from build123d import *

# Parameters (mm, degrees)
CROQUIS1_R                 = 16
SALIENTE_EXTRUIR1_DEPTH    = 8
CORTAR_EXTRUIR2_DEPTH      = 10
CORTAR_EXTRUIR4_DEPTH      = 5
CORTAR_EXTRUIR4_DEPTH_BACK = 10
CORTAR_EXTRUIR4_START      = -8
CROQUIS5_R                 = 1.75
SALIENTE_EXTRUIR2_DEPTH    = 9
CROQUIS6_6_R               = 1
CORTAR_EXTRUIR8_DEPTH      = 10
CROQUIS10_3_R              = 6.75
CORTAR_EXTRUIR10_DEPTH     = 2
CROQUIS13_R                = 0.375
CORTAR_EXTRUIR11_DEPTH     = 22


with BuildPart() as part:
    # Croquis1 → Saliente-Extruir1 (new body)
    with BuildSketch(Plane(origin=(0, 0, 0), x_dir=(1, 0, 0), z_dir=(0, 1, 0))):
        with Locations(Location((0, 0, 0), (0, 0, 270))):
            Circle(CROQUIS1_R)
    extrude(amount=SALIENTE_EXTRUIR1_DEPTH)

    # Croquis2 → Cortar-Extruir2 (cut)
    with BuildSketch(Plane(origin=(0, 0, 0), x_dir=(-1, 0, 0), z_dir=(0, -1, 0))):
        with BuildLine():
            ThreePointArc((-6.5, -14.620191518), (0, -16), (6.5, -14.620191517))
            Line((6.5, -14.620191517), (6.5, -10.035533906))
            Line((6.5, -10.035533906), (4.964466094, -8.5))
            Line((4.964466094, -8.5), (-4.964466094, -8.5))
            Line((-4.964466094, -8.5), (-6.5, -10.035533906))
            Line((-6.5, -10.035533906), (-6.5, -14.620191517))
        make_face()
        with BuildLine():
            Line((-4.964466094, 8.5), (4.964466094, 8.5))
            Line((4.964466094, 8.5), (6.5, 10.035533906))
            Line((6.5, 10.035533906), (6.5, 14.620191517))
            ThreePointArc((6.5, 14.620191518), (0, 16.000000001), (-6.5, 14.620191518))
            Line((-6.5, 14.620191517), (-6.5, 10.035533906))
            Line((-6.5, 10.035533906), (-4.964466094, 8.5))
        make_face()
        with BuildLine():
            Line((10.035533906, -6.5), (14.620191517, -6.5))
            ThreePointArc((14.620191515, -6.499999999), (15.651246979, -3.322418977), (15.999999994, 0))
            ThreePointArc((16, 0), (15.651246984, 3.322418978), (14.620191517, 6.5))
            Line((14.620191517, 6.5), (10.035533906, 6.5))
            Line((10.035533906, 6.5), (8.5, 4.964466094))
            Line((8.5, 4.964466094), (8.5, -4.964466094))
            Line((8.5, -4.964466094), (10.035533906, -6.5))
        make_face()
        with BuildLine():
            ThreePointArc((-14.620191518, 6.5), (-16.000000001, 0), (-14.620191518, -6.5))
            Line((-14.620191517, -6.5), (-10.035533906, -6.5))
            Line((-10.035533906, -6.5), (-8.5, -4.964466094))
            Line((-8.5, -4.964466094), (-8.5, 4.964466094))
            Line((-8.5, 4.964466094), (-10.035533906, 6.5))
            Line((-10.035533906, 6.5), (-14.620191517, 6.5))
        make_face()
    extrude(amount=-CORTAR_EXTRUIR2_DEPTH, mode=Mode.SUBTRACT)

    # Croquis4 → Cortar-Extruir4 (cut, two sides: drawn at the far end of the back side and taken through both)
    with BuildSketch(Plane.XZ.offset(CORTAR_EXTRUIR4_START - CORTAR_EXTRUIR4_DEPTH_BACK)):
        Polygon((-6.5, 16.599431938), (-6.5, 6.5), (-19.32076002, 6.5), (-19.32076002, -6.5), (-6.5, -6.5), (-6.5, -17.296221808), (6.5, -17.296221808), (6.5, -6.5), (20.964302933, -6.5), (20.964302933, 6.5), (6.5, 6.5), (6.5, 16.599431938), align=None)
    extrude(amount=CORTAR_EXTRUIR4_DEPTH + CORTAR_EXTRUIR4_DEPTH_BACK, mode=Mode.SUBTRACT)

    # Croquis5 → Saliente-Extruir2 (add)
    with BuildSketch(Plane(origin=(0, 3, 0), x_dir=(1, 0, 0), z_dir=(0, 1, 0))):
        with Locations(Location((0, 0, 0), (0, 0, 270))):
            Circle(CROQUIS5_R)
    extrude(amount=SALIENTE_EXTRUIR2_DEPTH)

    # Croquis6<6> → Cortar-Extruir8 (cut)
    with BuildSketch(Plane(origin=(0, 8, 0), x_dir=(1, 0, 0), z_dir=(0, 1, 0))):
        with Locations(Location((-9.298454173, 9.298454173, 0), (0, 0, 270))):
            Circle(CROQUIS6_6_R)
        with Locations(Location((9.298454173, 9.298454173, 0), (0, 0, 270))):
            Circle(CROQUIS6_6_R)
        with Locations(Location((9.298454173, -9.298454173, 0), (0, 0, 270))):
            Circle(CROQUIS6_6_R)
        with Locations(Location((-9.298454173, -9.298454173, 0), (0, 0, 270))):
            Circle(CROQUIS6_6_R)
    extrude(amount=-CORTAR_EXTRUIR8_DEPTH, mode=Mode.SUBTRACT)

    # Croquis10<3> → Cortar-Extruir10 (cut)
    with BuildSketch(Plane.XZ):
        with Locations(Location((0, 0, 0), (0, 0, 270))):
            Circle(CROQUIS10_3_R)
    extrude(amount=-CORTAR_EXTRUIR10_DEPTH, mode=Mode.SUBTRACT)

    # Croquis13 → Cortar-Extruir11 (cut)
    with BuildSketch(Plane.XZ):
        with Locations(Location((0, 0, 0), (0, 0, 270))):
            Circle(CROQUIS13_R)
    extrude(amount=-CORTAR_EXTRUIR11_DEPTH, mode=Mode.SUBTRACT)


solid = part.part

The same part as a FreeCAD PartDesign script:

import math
import FreeCAD as App
import Part
import Sketcher

V = App.Vector
Q = App.Units.Quantity

doc = App.newDocument("Part")
params = doc.addObject("Spreadsheet::Sheet", "Params")
for row, (alias, value) in enumerate([
    ("sketch1_diameter", "32 mm"),
    ("pad1_length", "8 mm"),
    ("sketch2_radius", "16 mm"),
    ("pocket1_length", "10 mm"),
    ("sketch3_width", "13 mm"),
    ("pocket2_length", "5 mm"),
    ("pocket2_length2", "10 mm"),
    ("sketch4_diameter", "3.5 mm"),
    ("pad2_length", "9 mm"),
    ("sketch5_diameter", "2 mm"),
    ("pocket3_length", "10 mm"),
    ("sketch6_diameter", "13.5 mm"),
    ("pocket4_length", "2 mm"),
    ("sketch7_diameter", "0.75 mm"),
    ("pocket5_length", "22 mm"),
], start=1):
    params.set(f"A{row}", alias)
    params.set(f"B{row}", "=" + value)
    params.setAlias(f"B{row}", alias)

body = doc.addObject("PartDesign::Body", "Body")

sketch1 = body.newObject("Sketcher::SketchObject", "Sketch")
sketch1.AttachmentSupport = (doc.getObject("XZ_Plane"), [""])
sketch1.MapMode = "FlatFace"
sketch1.addGeometry(Part.Circle(V(0, 0, 0), V(0, 0, 1), 16), False)
sketch1.addConstraint(Sketcher.Constraint("Coincident", 0, 3, -1, 1))
sketch1.addConstraint(Sketcher.Constraint("Diameter", 0, Q("32 mm")))
sketch1.setExpression("Constraints[1]", "Params.sketch1_diameter")
pad1 = body.newObject("PartDesign::Pad", "Pad")
pad1.Profile = sketch1
pad1.setExpression("Length", "Params.pad1_length")
pad1.Reversed = True

sketch2 = body.newObject("Sketcher::SketchObject", "Sketch001")
sketch2.AttachmentSupport = (doc.getObject("XZ_Plane"), [""])
sketch2.MapMode = "FlatFace"
sketch2.addGeometry(Part.ArcOfCircle(Part.Circle(V(0, 0, 0), V(0, 0, 1), 16), math.radians(66.030518), math.radians(113.969482)), False)
sketch2.addGeometry(Part.LineSegment(V(-6.5, 14.620192, 0), V(-6.5, 10.035534, 0)), False)
sketch2.addGeometry(Part.LineSegment(V(-6.5, 10.035534, 0), V(-4.964466, 8.5, 0)), False)
sketch2.addGeometry(Part.LineSegment(V(-4.964466, 8.5, 0), V(4.964466, 8.5, 0)), False)
sketch2.addGeometry(Part.LineSegment(V(4.964466, 8.5, 0), V(6.5, 10.035534, 0)), False)
sketch2.addGeometry(Part.LineSegment(V(6.5, 10.035534, 0), V(6.5, 14.620192, 0)), False)
sketch2.addGeometry(Part.LineSegment(V(4.964466, -8.5, 0), V(-4.964466, -8.5, 0)), False)
sketch2.addGeometry(Part.LineSegment(V(-4.964466, -8.5, 0), V(-6.5, -10.035534, 0)), False)
sketch2.addGeometry(Part.LineSegment(V(-6.5, -10.035534, 0), V(-6.5, -14.620192, 0)), False)
sketch2.addGeometry(Part.ArcOfCircle(Part.Circle(V(0, 0, 0), V(0, 0, 1), 16), math.radians(-113.969482), math.radians(-66.030518)), False)
sketch2.addGeometry(Part.LineSegment(V(6.5, -14.620192, 0), V(6.5, -10.035534, 0)), False)
sketch2.addGeometry(Part.LineSegment(V(6.5, -10.035534, 0), V(4.964466, -8.5, 0)), False)
sketch2.addGeometry(Part.LineSegment(V(-10.035534, 6.5, 0), V(-14.620192, 6.5, 0)), False)
sketch2.addGeometry(Part.ArcOfCircle(Part.Circle(V(0, 0, 0), V(0, 0, 1), 16), math.radians(156.030518), math.radians(180)), False)
sketch2.addGeometry(Part.ArcOfCircle(Part.Circle(V(0, 0, 0), V(0, 0, 1), 16), math.radians(180), math.radians(203.969482)), False)
sketch2.addGeometry(Part.LineSegment(V(-14.620192, -6.5, 0), V(-10.035534, -6.5, 0)), False)
sketch2.addGeometry(Part.LineSegment(V(-10.035534, -6.5, 0), V(-8.5, -4.964466, 0)), False)
sketch2.addGeometry(Part.LineSegment(V(-8.5, -4.964466, 0), V(-8.5, 4.964466, 0)), False)
sketch2.addGeometry(Part.LineSegment(V(-8.5, 4.964466, 0), V(-10.035534, 6.5, 0)), False)
sketch2.addGeometry(Part.ArcOfCircle(Part.Circle(V(0, 0, 0), V(0, 0, 1), 16), math.radians(-23.969482), math.radians(23.969482)), False)
sketch2.addGeometry(Part.LineSegment(V(14.620192, 6.5, 0), V(10.035534, 6.5, 0)), False)
sketch2.addGeometry(Part.LineSegment(V(10.035534, 6.5, 0), V(8.5, 4.964466, 0)), False)
sketch2.addGeometry(Part.LineSegment(V(8.5, 4.964466, 0), V(8.5, -4.964466, 0)), False)
sketch2.addGeometry(Part.LineSegment(V(8.5, -4.964466, 0), V(10.035534, -6.5, 0)), False)
sketch2.addGeometry(Part.LineSegment(V(10.035534, -6.5, 0), V(14.620192, -6.5, 0)), False)
sketch2.addConstraint(Sketcher.Constraint("Coincident", 0, 2, 1, 1))
sketch2.addConstraint(Sketcher.Constraint("Coincident", 1, 2, 2, 1))
sketch2.addConstraint(Sketcher.Constraint("Coincident", 2, 2, 3, 1))
sketch2.addConstraint(Sketcher.Constraint("Coincident", 3, 2, 4, 1))
sketch2.addConstraint(Sketcher.Constraint("Coincident", 4, 2, 5, 1))
sketch2.addConstraint(Sketcher.Constraint("Coincident", 5, 2, 0, 1))
sketch2.addConstraint(Sketcher.Constraint("Coincident", 6, 2, 7, 1))
sketch2.addConstraint(Sketcher.Constraint("Coincident", 7, 2, 8, 1))
sketch2.addConstraint(Sketcher.Constraint("Coincident", 8, 2, 9, 1))
sketch2.addConstraint(Sketcher.Constraint("Coincident", 9, 2, 10, 1))
sketch2.addConstraint(Sketcher.Constraint("Coincident", 10, 2, 11, 1))
sketch2.addConstraint(Sketcher.Constraint("Coincident", 11, 2, 6, 1))
sketch2.addConstraint(Sketcher.Constraint("Coincident", 12, 2, 13, 1))
sketch2.addConstraint(Sketcher.Constraint("Tangent", 13, 2, 14, 1))
sketch2.addConstraint(Sketcher.Constraint("Coincident", 14, 2, 15, 1))
sketch2.addConstraint(Sketcher.Constraint("Coincident", 15, 2, 16, 1))
sketch2.addConstraint(Sketcher.Constraint("Coincident", 16, 2, 17, 1))
sketch2.addConstraint(Sketcher.Constraint("Coincident", 17, 2, 18, 1))
sketch2.addConstraint(Sketcher.Constraint("Coincident", 18, 2, 12, 1))
sketch2.addConstraint(Sketcher.Constraint("Coincident", 19, 2, 20, 1))
sketch2.addConstraint(Sketcher.Constraint("Coincident", 20, 2, 21, 1))
sketch2.addConstraint(Sketcher.Constraint("Coincident", 21, 2, 22, 1))
sketch2.addConstraint(Sketcher.Constraint("Coincident", 22, 2, 23, 1))
sketch2.addConstraint(Sketcher.Constraint("Coincident", 23, 2, 24, 1))
sketch2.addConstraint(Sketcher.Constraint("Coincident", 24, 2, 19, 1))
sketch2.addConstraint(Sketcher.Constraint("Vertical", 1))
sketch2.addConstraint(Sketcher.Constraint("Horizontal", 3))
sketch2.addConstraint(Sketcher.Constraint("Vertical", 5))
sketch2.addConstraint(Sketcher.Constraint("Horizontal", 6))
sketch2.addConstraint(Sketcher.Constraint("Vertical", 8))
sketch2.addConstraint(Sketcher.Constraint("Vertical", 10))
sketch2.addConstraint(Sketcher.Constraint("Horizontal", 12))
sketch2.addConstraint(Sketcher.Constraint("Horizontal", 15))
sketch2.addConstraint(Sketcher.Constraint("Vertical", 17))
sketch2.addConstraint(Sketcher.Constraint("Horizontal", 20))
sketch2.addConstraint(Sketcher.Constraint("Vertical", 22))
sketch2.addConstraint(Sketcher.Constraint("Horizontal", 24))
sketch2.addConstraint(Sketcher.Constraint("Coincident", 0, 3, -1, 1))
sketch2.addConstraint(Sketcher.Constraint("Coincident", 9, 3, -1, 1))
sketch2.addConstraint(Sketcher.Constraint("Coincident", 13, 3, -1, 1))
sketch2.addConstraint(Sketcher.Constraint("Coincident", 19, 3, -1, 1))
sketch2.addConstraint(Sketcher.Constraint("Equal", 0, 9))
sketch2.addConstraint(Sketcher.Constraint("Equal", 9, 13))
sketch2.addConstraint(Sketcher.Constraint("Equal", 13, 14))
sketch2.addConstraint(Sketcher.Constraint("Equal", 14, 19))
sketch2.addConstraint(Sketcher.Constraint("Symmetric", 3, 2, 6, 2, -1, 1))
sketch2.addConstraint(Sketcher.Constraint("Symmetric", 4, 2, 7, 2, -1, 1))
sketch2.addConstraint(Sketcher.Constraint("Symmetric", 1, 2, 10, 2, -1, 1))
sketch2.addConstraint(Sketcher.Constraint("Symmetric", 15, 2, 20, 2, -1, 1))
sketch2.addConstraint(Sketcher.Constraint("Symmetric", 16, 2, 21, 2, -1, 1))
sketch2.addConstraint(Sketcher.Constraint("Symmetric", 18, 2, 23, 2, -1, 1))
sketch2.addConstraint(Sketcher.Constraint("Symmetric", 1, 2, 4, 2, -2))
sketch2.addConstraint(Sketcher.Constraint("Symmetric", 18, 2, 20, 2, -2))
sketch2.addConstraint(Sketcher.Constraint("PointOnObject", 13, 2, -1))
sketch2.addConstraint(Sketcher.Constraint("Perpendicular", 2, 4))
sketch2.addConstraint(Sketcher.Constraint("Perpendicular", 7, 11))
sketch2.addConstraint(Sketcher.Constraint("Perpendicular", 11, 16))
sketch2.addConstraint(Sketcher.Constraint("Perpendicular", 16, 18))
sketch2.addConstraint(Sketcher.Constraint("Perpendicular", 21, 23))
sketch2.addConstraint(Sketcher.Constraint("Horizontal", 17, 2, 21, 2))
sketch2.addConstraint(Sketcher.Constraint("Equal", 24, 1))
sketch2.addConstraint(Sketcher.Constraint("Equal", 6, 17))
sketch2.addConstraint(Sketcher.Constraint("Equal", 11, 16))
sketch2.addConstraint(Sketcher.Constraint("Radius", 0, Q("16 mm")))
sketch2.addConstraint(Sketcher.Constraint("DistanceX", 0, 2, 5, 2, Q("13 mm")))
sketch2.addConstraint(Sketcher.Constraint("DistanceY", 12, 2, 2, 2, Q("2 mm")))
sketch2.addConstraint(Sketcher.Constraint("DistanceX", 3, 1, 3, 2, Q("9.928932 mm")))
sketch2.setExpression("Constraints[63]", "Params.sketch2_radius")
pocket1 = body.newObject("PartDesign::Pocket", "Pocket")
pocket1.Profile = sketch2
pocket1.setExpression("Length", "Params.pocket1_length")

sketch3 = body.newObject("Sketcher::SketchObject", "Sketch002")
sketch3.AttachmentSupport = (doc.getObject("XZ_Plane"), [""])
sketch3.MapMode = "FlatFace"
sketch3.AttachmentOffset = App.Placement(V(0, 0, -8), App.Rotation())
sketch3.addGeometry(Part.LineSegment(V(-6.5, 16.599432, 0), V(-6.5, 6.5, 0)), False)
sketch3.addGeometry(Part.LineSegment(V(-6.5, 6.5, 0), V(-19.32076, 6.5, 0)), False)
sketch3.addGeometry(Part.LineSegment(V(-19.32076, 6.5, 0), V(-19.32076, -6.5, 0)), False)
sketch3.addGeometry(Part.LineSegment(V(-19.32076, -6.5, 0), V(-6.5, -6.5, 0)), False)
sketch3.addGeometry(Part.LineSegment(V(-6.5, -6.5, 0), V(-6.5, -17.296222, 0)), False)
sketch3.addGeometry(Part.LineSegment(V(-6.5, -17.296222, 0), V(6.5, -17.296222, 0)), False)
sketch3.addGeometry(Part.LineSegment(V(6.5, -17.296222, 0), V(6.5, -6.5, 0)), False)
sketch3.addGeometry(Part.LineSegment(V(6.5, -6.5, 0), V(20.964303, -6.5, 0)), False)
sketch3.addGeometry(Part.LineSegment(V(20.964303, -6.5, 0), V(20.964303, 6.5, 0)), False)
sketch3.addGeometry(Part.LineSegment(V(20.964303, 6.5, 0), V(6.5, 6.5, 0)), False)
sketch3.addGeometry(Part.LineSegment(V(6.5, 6.5, 0), V(6.5, 16.599432, 0)), False)
sketch3.addGeometry(Part.LineSegment(V(6.5, 16.599432, 0), V(-6.5, 16.599432, 0)), False)
sketch3.addConstraint(Sketcher.Constraint("Coincident", 0, 2, 1, 1))
sketch3.addConstraint(Sketcher.Constraint("Coincident", 1, 2, 2, 1))
sketch3.addConstraint(Sketcher.Constraint("Coincident", 2, 2, 3, 1))
sketch3.addConstraint(Sketcher.Constraint("Coincident", 3, 2, 4, 1))
sketch3.addConstraint(Sketcher.Constraint("Coincident", 4, 2, 5, 1))
sketch3.addConstraint(Sketcher.Constraint("Coincident", 5, 2, 6, 1))
sketch3.addConstraint(Sketcher.Constraint("Coincident", 6, 2, 7, 1))
sketch3.addConstraint(Sketcher.Constraint("Coincident", 7, 2, 8, 1))
sketch3.addConstraint(Sketcher.Constraint("Coincident", 8, 2, 9, 1))
sketch3.addConstraint(Sketcher.Constraint("Coincident", 9, 2, 10, 1))
sketch3.addConstraint(Sketcher.Constraint("Coincident", 10, 2, 11, 1))
sketch3.addConstraint(Sketcher.Constraint("Coincident", 11, 2, 0, 1))
sketch3.addConstraint(Sketcher.Constraint("Vertical", 0))
sketch3.addConstraint(Sketcher.Constraint("Horizontal", 1))
sketch3.addConstraint(Sketcher.Constraint("Vertical", 2))
sketch3.addConstraint(Sketcher.Constraint("Horizontal", 3))
sketch3.addConstraint(Sketcher.Constraint("Vertical", 4))
sketch3.addConstraint(Sketcher.Constraint("Horizontal", 5))
sketch3.addConstraint(Sketcher.Constraint("Vertical", 6))
sketch3.addConstraint(Sketcher.Constraint("Horizontal", 7))
sketch3.addConstraint(Sketcher.Constraint("Vertical", 8))
sketch3.addConstraint(Sketcher.Constraint("Horizontal", 9))
sketch3.addConstraint(Sketcher.Constraint("Vertical", 10))
sketch3.addConstraint(Sketcher.Constraint("Horizontal", 11))
sketch3.addConstraint(Sketcher.Constraint("Symmetric", 0, 2, 6, 2, -1, 1))
sketch3.addConstraint(Sketcher.Constraint("Symmetric", 3, 2, 9, 2, -1, 1))
sketch3.addConstraint(Sketcher.Constraint("Symmetric", 3, 2, 6, 2, -2))
sketch3.addConstraint(Sketcher.Constraint("Equal", 11, 2))
sketch3.addConstraint(Sketcher.Constraint("DistanceX", 5, 1, 5, 2, Q("13 mm")))
sketch3.addConstraint(Sketcher.Constraint("DistanceX", 1, 2, 1, 1, Q("12.82076 mm")))
sketch3.addConstraint(Sketcher.Constraint("DistanceY", 0, 2, 0, 1, Q("10.099432 mm")))
sketch3.addConstraint(Sketcher.Constraint("DistanceY", 4, 2, 4, 1, Q("10.796222 mm")))
sketch3.addConstraint(Sketcher.Constraint("DistanceX", 7, 1, 7, 2, Q("14.464303 mm")))
sketch3.setExpression("Constraints[28]", "Params.sketch3_width")
pocket2 = body.newObject("PartDesign::Pocket", "Pocket001")
pocket2.Profile = sketch3
pocket2.Type = "TwoLengths"
pocket2.setExpression("Length", "Params.pocket2_length")
pocket2.setExpression("Length2", "Params.pocket2_length2")
pocket2.Reversed = True

sketch4 = body.newObject("Sketcher::SketchObject", "Sketch003")
sketch4.AttachmentSupport = (doc.getObject("XZ_Plane"), [""])
sketch4.MapMode = "FlatFace"
sketch4.AttachmentOffset = App.Placement(V(0, 0, -3), App.Rotation())
sketch4.addGeometry(Part.Circle(V(0, 0, 0), V(0, 0, 1), 1.75), False)
sketch4.addConstraint(Sketcher.Constraint("Coincident", 0, 3, -1, 1))
sketch4.addConstraint(Sketcher.Constraint("Diameter", 0, Q("3.5 mm")))
sketch4.setExpression("Constraints[1]", "Params.sketch4_diameter")
pad2 = body.newObject("PartDesign::Pad", "Pad001")
pad2.Profile = sketch4
pad2.setExpression("Length", "Params.pad2_length")
pad2.Reversed = True

sketch5 = body.newObject("Sketcher::SketchObject", "Sketch004")
sketch5.AttachmentSupport = (doc.getObject("XZ_Plane"), [""])
sketch5.MapMode = "FlatFace"
sketch5.AttachmentOffset = App.Placement(V(0, 0, -8), App.Rotation())
sketch5.addGeometry(Part.Circle(V(-9.298454, -9.298454, 0), V(0, 0, 1), 1), False)
sketch5.addGeometry(Part.Circle(V(9.298454, -9.298454, 0), V(0, 0, 1), 1), False)
sketch5.addGeometry(Part.Circle(V(9.298454, 9.298454, 0), V(0, 0, 1), 1), False)
sketch5.addGeometry(Part.Circle(V(-9.298454, 9.298454, 0), V(0, 0, 1), 1), False)
sketch5.addConstraint(Sketcher.Constraint("Equal", 0, 1))
sketch5.addConstraint(Sketcher.Constraint("Equal", 1, 2))
sketch5.addConstraint(Sketcher.Constraint("Equal", 2, 3))
sketch5.addConstraint(Sketcher.Constraint("Symmetric", 0, 3, 2, 3, -1, 1))
sketch5.addConstraint(Sketcher.Constraint("Symmetric", 1, 3, 3, 3, -1, 1))
sketch5.addConstraint(Sketcher.Constraint("Symmetric", 0, 3, 1, 3, -2))
sketch5.addConstraint(Sketcher.Constraint("Diameter", 0, Q("2 mm")))
sketch5.addConstraint(Sketcher.Constraint("DistanceX", 0, 3, 1, 3, Q("18.596908 mm")))
sketch5.addConstraint(Sketcher.Constraint("DistanceY", 1, 3, 2, 3, Q("18.596908 mm")))
sketch5.setExpression("Constraints[6]", "Params.sketch5_diameter")
pocket3 = body.newObject("PartDesign::Pocket", "Pocket002")
pocket3.Profile = sketch5
pocket3.setExpression("Length", "Params.pocket3_length")
pocket3.Reversed = True

sketch6 = body.newObject("Sketcher::SketchObject", "Sketch005")
sketch6.AttachmentSupport = (doc.getObject("XZ_Plane"), [""])
sketch6.MapMode = "FlatFace"
sketch6.addGeometry(Part.Circle(V(0, 0, 0), V(0, 0, 1), 6.75), False)
sketch6.addConstraint(Sketcher.Constraint("Coincident", 0, 3, -1, 1))
sketch6.addConstraint(Sketcher.Constraint("Diameter", 0, Q("13.5 mm")))
sketch6.setExpression("Constraints[1]", "Params.sketch6_diameter")
pocket4 = body.newObject("PartDesign::Pocket", "Pocket003")
pocket4.Profile = sketch6
pocket4.setExpression("Length", "Params.pocket4_length")

sketch7 = body.newObject("Sketcher::SketchObject", "Sketch006")
sketch7.AttachmentSupport = (doc.getObject("XZ_Plane"), [""])
sketch7.MapMode = "FlatFace"
sketch7.addGeometry(Part.Circle(V(0, 0, 0), V(0, 0, 1), 0.375), False)
sketch7.addConstraint(Sketcher.Constraint("Coincident", 0, 3, -1, 1))
sketch7.addConstraint(Sketcher.Constraint("Diameter", 0, Q("0.75 mm")))
sketch7.setExpression("Constraints[1]", "Params.sketch7_diameter")
pocket5 = body.newObject("PartDesign::Pocket", "Pocket004")
pocket5.Profile = sketch7
pocket5.setExpression("Length", "Params.pocket5_length")

doc.recompute()
